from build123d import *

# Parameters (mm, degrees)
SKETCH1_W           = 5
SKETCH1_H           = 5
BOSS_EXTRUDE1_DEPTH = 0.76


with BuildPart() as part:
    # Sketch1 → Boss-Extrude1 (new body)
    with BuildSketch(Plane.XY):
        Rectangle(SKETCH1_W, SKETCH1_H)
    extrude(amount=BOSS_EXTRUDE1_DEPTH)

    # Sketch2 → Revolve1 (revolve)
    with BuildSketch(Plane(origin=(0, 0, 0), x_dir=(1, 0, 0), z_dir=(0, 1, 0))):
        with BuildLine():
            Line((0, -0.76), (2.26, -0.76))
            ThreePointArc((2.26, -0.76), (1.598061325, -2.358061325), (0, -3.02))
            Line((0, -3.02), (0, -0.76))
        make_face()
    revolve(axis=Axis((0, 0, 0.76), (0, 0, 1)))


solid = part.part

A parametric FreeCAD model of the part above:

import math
import FreeCAD as App
import Part
import Sketcher
Q = App.Units.Quantity

doc = App.newDocument("Part")
params = doc.addObject("Spreadsheet::Sheet", "Params")
for row, (alias, value) in enumerate([
    ("sketch1_width", "5 mm"),
    ("pad1_length", "0.76 mm"),
    ("sketch2_radius", "2.26 mm"),
    ("revolution_angle", "360 deg"),
], start=1):
    params.set(f"A{row}", alias)
    params.set(f"B{row}", "=" + value)
    params.setAlias(f"B{row}", alias)

body = doc.addObject("PartDesign::Body", "Body")

sketch1 = body.newObject("Sketcher::SketchObject", "Sketch")
sketch1.AttachmentSupport = (doc.getObject("XY_Plane"), [""])
sketch1.MapMode = "FlatFace"
sketch1.addGeometry([
    Part.LineSegment(App.Vector(-2.5, 2.5, 0), App.Vector(-2.5, -2.5, 0)),
    Part.LineSegment(App.Vector(-2.5, -2.5, 0), App.Vector(2.5, -2.5, 0)),
    Part.LineSegment(App.Vector(2.5, -2.5, 0), App.Vector(2.5, 2.5, 0)),
    Part.LineSegment(App.Vector(2.5, 2.5, 0), App.Vector(-2.5, 2.5, 0)),
], False)
sketch1.addConstraint([
    Sketcher.Constraint("Coincident", 0, 2, 1, 1),
    Sketcher.Constraint("Coincident", 1, 2, 2, 1),
    Sketcher.Constraint("Coincident", 2, 2, 3, 1),
    Sketcher.Constraint("Coincident", 3, 2, 0, 1),
    Sketcher.Constraint("Vertical", 0),
    Sketcher.Constraint("Horizontal", 1),
    Sketcher.Constraint("Vertical", 2),
    Sketcher.Constraint("Horizontal", 3),
    Sketcher.Constraint("Symmetric", 0, 2, 2, 2, -1, 1),
    Sketcher.Constraint("Equal", 3, 0),
    Sketcher.Constraint("DistanceX", 1, 1, 1, 2, Q("5 mm")),
])
sketch1.setExpression("Constraints[10]", "Params.sketch1_width")
pad1 = body.newObject("PartDesign::Pad", "Pad")
pad1.Profile = sketch1
pad1.setExpression("Length", "Params.pad1_length")

sketch2 = body.newObject("Sketcher::SketchObject", "Sketch001")
sketch2.AttachmentSupport = (doc.getObject("XZ_Plane"), [""])
sketch2.MapMode = "FlatFace"
sketch2.addGeometry([
    Part.LineSegment(App.Vector(2.26, 0.76, 0), App.Vector(0, 0.76, 0)),
    Part.LineSegment(App.Vector(0, 0.76, 0), App.Vector(0, 3.02, 0)),
    Part.ArcOfCircle(Part.Circle(App.Vector(0, 0.76, 0), App.Vector(0, 0, 1), 2.26), math.radians(0), math.radians(90)),
], False)
sketch2.addConstraint([
    Sketcher.Constraint("Coincident", 0, 2, 1, 1),
    Sketcher.Constraint("Coincident", 1, 2, 2, 2),
    Sketcher.Constraint("Coincident", 2, 1, 0, 1),
    Sketcher.Constraint("Horizontal", 0),
    Sketcher.Constraint("Vertical", 1),
    Sketcher.Constraint("Coincident", 0, 2, 2, 3),
    Sketcher.Constraint("PointOnObject", 2, 3, -2),
    Sketcher.Constraint("Radius", 2, Q("2.26 mm")),
    Sketcher.Constraint("DistanceY", -1, 1, 2, 3, Q("0.76 mm")),
])
sketch2.setExpression("Constraints[7]", "Params.sketch2_radius")
revolution = body.newObject("PartDesign::Revolution", "Revolution")
revolution.Profile = sketch2
revolution.ReferenceAxis = (sketch2, ["V_Axis"])
revolution.setExpression("Angle", "Params.revolution_angle")

doc.recompute()
